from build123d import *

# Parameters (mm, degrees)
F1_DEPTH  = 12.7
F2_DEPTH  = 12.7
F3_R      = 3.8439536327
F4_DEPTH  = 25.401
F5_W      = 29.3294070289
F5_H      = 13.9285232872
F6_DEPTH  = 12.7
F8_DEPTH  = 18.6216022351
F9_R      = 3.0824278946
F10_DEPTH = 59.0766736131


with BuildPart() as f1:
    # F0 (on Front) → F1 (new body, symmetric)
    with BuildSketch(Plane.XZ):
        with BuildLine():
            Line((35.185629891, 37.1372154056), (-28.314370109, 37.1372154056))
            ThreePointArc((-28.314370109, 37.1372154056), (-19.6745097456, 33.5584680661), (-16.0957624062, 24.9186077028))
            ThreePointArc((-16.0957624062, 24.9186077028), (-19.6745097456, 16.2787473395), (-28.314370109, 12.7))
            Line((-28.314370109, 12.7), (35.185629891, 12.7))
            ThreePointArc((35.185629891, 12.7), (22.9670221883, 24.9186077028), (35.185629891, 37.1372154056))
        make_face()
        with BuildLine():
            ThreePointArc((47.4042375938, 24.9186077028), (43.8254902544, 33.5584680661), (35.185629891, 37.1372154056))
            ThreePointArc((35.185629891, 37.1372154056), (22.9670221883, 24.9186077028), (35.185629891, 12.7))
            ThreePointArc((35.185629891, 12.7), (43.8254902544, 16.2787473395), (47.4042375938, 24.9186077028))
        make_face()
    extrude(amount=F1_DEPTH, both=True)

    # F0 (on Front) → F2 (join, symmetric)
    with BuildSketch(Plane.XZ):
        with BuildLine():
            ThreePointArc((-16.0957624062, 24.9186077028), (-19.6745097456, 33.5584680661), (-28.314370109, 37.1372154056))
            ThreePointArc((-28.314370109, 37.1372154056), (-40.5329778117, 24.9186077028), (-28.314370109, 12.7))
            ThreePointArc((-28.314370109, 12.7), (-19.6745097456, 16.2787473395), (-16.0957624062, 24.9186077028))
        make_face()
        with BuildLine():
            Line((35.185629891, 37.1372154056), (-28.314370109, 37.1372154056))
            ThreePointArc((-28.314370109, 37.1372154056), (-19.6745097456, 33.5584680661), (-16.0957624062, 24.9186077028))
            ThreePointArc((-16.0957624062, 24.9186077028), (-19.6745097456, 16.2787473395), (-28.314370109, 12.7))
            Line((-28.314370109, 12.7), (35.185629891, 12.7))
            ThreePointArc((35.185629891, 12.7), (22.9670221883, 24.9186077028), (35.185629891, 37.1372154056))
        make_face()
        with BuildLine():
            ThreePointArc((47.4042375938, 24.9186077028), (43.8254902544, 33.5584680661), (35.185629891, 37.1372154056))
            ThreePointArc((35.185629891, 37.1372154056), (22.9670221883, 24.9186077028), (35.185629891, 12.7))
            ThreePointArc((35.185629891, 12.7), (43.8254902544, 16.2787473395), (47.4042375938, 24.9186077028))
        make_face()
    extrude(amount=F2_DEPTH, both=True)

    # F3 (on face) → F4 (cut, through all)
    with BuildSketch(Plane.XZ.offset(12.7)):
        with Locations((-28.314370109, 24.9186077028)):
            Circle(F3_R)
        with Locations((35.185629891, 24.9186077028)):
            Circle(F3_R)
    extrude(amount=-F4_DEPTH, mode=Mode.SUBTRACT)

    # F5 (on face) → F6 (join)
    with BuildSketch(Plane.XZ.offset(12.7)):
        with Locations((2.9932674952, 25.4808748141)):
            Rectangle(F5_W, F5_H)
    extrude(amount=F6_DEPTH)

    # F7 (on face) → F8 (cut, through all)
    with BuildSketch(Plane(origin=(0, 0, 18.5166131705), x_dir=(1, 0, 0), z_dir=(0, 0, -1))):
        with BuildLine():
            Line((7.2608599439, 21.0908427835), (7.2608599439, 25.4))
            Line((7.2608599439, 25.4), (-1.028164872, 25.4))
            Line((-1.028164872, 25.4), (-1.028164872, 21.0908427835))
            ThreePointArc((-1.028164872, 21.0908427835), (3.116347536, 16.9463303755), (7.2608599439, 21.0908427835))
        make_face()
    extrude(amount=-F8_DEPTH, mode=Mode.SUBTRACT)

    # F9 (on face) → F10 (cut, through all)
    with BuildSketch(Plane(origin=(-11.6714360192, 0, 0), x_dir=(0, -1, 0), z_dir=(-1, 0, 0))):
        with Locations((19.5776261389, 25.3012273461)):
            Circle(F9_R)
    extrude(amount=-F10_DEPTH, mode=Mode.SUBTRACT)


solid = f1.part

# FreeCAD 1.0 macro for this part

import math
import FreeCAD as App
import Part
import Sketcher
from FreeCAD import Vector
Q = App.Units.Quantity


def add_polygon(sketch, points):
    """Adds a closed chain of lines whose ends are joined by coincident constraints."""
    first, n = sketch.GeometryCount, len(points)
    for a, b in zip(points, points[1:] + points[:1]):
        sketch.addGeometry(Part.LineSegment(App.Vector(*a, 0), App.Vector(*b, 0)), False)
    for i in range(n):
        sketch.addConstraint(Sketcher.Constraint("Coincident", first + i, 2, first + (i + 1) % n, 1))

doc = App.newDocument("Part")
body = doc.addObject("PartDesign::Body", "Body")

# Sketch on XZ plane
sketch1 = body.newObject("Sketcher::SketchObject", "Sketch")
sketch1.AttachmentSupport = (doc.getObject("XZ_Plane"), [""])
sketch1.MapMode = "FlatFace"
sketch1.addGeometry(Part.LineSegment(Vector(35.18563, 37.137215, 0), Vector(-28.31437, 37.137215, 0)), False)
sketch1.addGeometry(Part.ArcOfCircle(Part.Circle(Vector(-28.31437, 24.918608, 0), Vector(0, 0, 1), 12.218608), math.radians(0), math.radians(90)), False)
sketch1.addGeometry(Part.ArcOfCircle(Part.Circle(Vector(-28.31437, 24.918608, 0), Vector(0, 0, 1), 12.218608), math.radians(-90), math.radians(0)), False)
sketch1.addGeometry(Part.LineSegment(Vector(-28.31437, 12.7, 0), Vector(35.18563, 12.7, 0)), False)
sketch1.addGeometry(Part.ArcOfCircle(Part.Circle(Vector(35.18563, 24.918608, 0), Vector(0, 0, 1), 12.218608), math.radians(-90), math.radians(0)), False)
sketch1.addGeometry(Part.ArcOfCircle(Part.Circle(Vector(35.18563, 24.918608, 0), Vector(0, 0, 1), 12.218608), math.radians(0), math.radians(90)), False)
sketch1.addConstraint(Sketcher.Constraint("Tangent", 0, 2, 1, 2))
sketch1.addConstraint(Sketcher.Constraint("Tangent", 1, 1, 2, 2))
sketch1.addConstraint(Sketcher.Constraint("Tangent", 2, 1, 3, 1))
sketch1.addConstraint(Sketcher.Constraint("Tangent", 3, 2, 4, 1))
sketch1.addConstraint(Sketcher.Constraint("Tangent", 4, 2, 5, 1))
sketch1.addConstraint(Sketcher.Constraint("Tangent", 5, 2, 0, 1))
sketch1.addConstraint(Sketcher.Constraint("Horizontal", 0))
sketch1.addConstraint(Sketcher.Constraint("Horizontal", 3))
sketch1.addConstraint(Sketcher.Constraint("Equal", 1, 2))
sketch1.addConstraint(Sketcher.Constraint("Equal", 2, 4))
sketch1.addConstraint(Sketcher.Constraint("Horizontal", 5, 3, 1, 1))
sketch1.addConstraint(Sketcher.Constraint("Horizontal", 1, 1, 4, 2))
sketch1.addConstraint(Sketcher.Constraint("DistanceX", 0, 2, 0, 1, Q("2.5 in")))
sketch1.addConstraint(Sketcher.Constraint("DistanceY", -1, 1, 2, 1, Q("0.5 in")))
sketch1.addConstraint(Sketcher.Constraint("Radius", 1, Q("12.218608 mm")))
sketch1.addConstraint(Sketcher.Constraint("DistanceX", 1, 3, -1, 1, Q("28.31437 mm")))
pad1 = body.newObject("PartDesign::Pad", "Pad")
pad1.Profile = sketch1
pad1.Length = Q("1 in")
pad1.Midplane = True

# Sketch on XZ plane
sketch2 = body.newObject("Sketcher::SketchObject", "Sketch001")
sketch2.AttachmentSupport = (doc.getObject("XZ_Plane"), [""])
sketch2.MapMode = "FlatFace"
sketch2.addGeometry(Part.ArcOfCircle(Part.Circle(Vector(-28.31437, 24.918608, 0), Vector(0, 0, 1), 12.218608), math.radians(90), math.radians(270)), False)
sketch2.addGeometry(Part.LineSegment(Vector(-28.31437, 12.7, 0), Vector(35.18563, 12.7, 0)), False)
sketch2.addGeometry(Part.ArcOfCircle(Part.Circle(Vector(35.18563, 24.918608, 0), Vector(0, 0, 1), 12.218608), math.radians(-90), math.radians(0)), False)
sketch2.addGeometry(Part.ArcOfCircle(Part.Circle(Vector(35.18563, 24.918608, 0), Vector(0, 0, 1), 12.218608), math.radians(0), math.radians(90)), False)
sketch2.addGeometry(Part.LineSegment(Vector(35.18563, 37.137215, 0), Vector(-28.31437, 37.137215, 0)), False)
sketch2.addConstraint(Sketcher.Constraint("Tangent", 0, 2, 1, 1))
sketch2.addConstraint(Sketcher.Constraint("Tangent", 1, 2, 2, 1))
sketch2.addConstraint(Sketcher.Constraint("Tangent", 2, 2, 3, 1))
sketch2.addConstraint(Sketcher.Constraint("Tangent", 3, 2, 4, 1))
sketch2.addConstraint(Sketcher.Constraint("Tangent", 4, 2, 0, 1))
sketch2.addConstraint(Sketcher.Constraint("Horizontal", 1))
sketch2.addConstraint(Sketcher.Constraint("Horizontal", 4))
sketch2.addConstraint(Sketcher.Constraint("Equal", 0, 2))
sketch2.addConstraint(Sketcher.Constraint("Horizontal", 3, 3, 2, 2))
sketch2.addConstraint(Sketcher.Constraint("DistanceX", 1, 1, 1, 2, Q("2.5 in")))
sketch2.addConstraint(Sketcher.Constraint("DistanceY", -1, 1, 0, 2, Q("0.5 in")))
sketch2.addConstraint(Sketcher.Constraint("Radius", 0, Q("12.218608 mm")))
sketch2.addConstraint(Sketcher.Constraint("DistanceX", 0, 3, -1, 1, Q("28.31437 mm")))
pad2 = body.newObject("PartDesign::Pad", "Pad001")
pad2.Profile = sketch2
pad2.Length = Q("1 in")
pad2.Midplane = True

# Sketch on XZ plane
sketch3 = body.newObject("Sketcher::SketchObject", "Sketch002")
sketch3.AttachmentSupport = (doc.getObject("XZ_Plane"), [""])
sketch3.MapMode = "FlatFace"
sketch3.AttachmentOffset = App.Placement(Vector(0, 0, 0.5 * 25.4), App.Rotation())
sketch3.addGeometry(Part.Circle(Vector(-28.31437, 24.918608, 0), Vector(0, 0, 1), 3.843954), False)
sketch3.addGeometry(Part.Circle(Vector(35.18563, 24.918608, 0), Vector(0, 0, 1), 3.843954), False)
sketch3.addConstraint(Sketcher.Constraint("Equal", 0, 1))
sketch3.addConstraint(Sketcher.Constraint("Horizontal", 0, 3, 1, 3))
sketch3.addConstraint(Sketcher.Constraint("DistanceX", 0, 3, 1, 3, Q("2.5 in")))
sketch3.addConstraint(Sketcher.Constraint("Diameter", 0, Q("7.687907 mm")))
sketch3.addConstraint(Sketcher.Constraint("DistanceX", 0, 3, -1, 1, Q("28.31437 mm")))
sketch3.addConstraint(Sketcher.Constraint("DistanceY", -1, 1, 0, 3, Q("24.918608 mm")))
pocket1 = body.newObject("PartDesign::Pocket", "Pocket")
pocket1.Profile = sketch3
pocket1.Type = "ThroughAll"

# Sketch on XZ plane
sketch4 = body.newObject("Sketcher::SketchObject", "Sketch003")
sketch4.AttachmentSupport = (doc.getObject("XZ_Plane"), [""])
sketch4.MapMode = "FlatFace"
sketch4.AttachmentOffset = App.Placement(Vector(0, 0, 0.5 * 25.4), App.Rotation())
add_polygon(sketch4, [(-11.671436, 32.445136), (-11.671436, 18.516613), (17.657971, 18.516613), (17.657971, 32.445136)])  # lines 0-3
sketch4.addConstraint(Sketcher.Constraint("Vertical", 0))
sketch4.addConstraint(Sketcher.Constraint("Horizontal", 1))
sketch4.addConstraint(Sketcher.Constraint("Vertical", 2))
sketch4.addConstraint(Sketcher.Constraint("Horizontal", 3))
sketch4.addConstraint(Sketcher.Constraint("DistanceX", 1, 1, 1, 2, Q("29.329407 mm")))
sketch4.addConstraint(Sketcher.Constraint("DistanceY", 0, 2, 0, 1, Q("13.928523 mm")))
sketch4.addConstraint(Sketcher.Constraint("DistanceX", -1, 1, 1, 2, Q("17.657971 mm")))
sketch4.addConstraint(Sketcher.Constraint("DistanceY", -1, 1, 0, 2, Q("18.516613 mm")))
pad3 = body.newObject("PartDesign::Pad", "Pad002")
pad3.Profile = sketch4
pad3.Length = Q("0.5 in")

# Sketch on XY plane
sketch5 = body.newObject("Sketcher::SketchObject", "Sketch004")
sketch5.AttachmentSupport = (doc.getObject("XY_Plane"), [""])
sketch5.MapMode = "FlatFace"
sketch5.AttachmentOffset = App.Placement(Vector(0, 0, 18.516613), App.Rotation())
sketch5.addGeometry(Part.LineSegment(Vector(7.26086, -21.090843, 0), Vector(7.26086, -25.4, 0)), False)
sketch5.addGeometry(Part.LineSegment(Vector(7.26086, -25.4, 0), Vector(-1.028165, -25.4, 0)), False)
sketch5.addGeometry(Part.LineSegment(Vector(-1.028165, -25.4, 0), Vector(-1.028165, -21.090843, 0)), False)
sketch5.addGeometry(Part.ArcOfCircle(Part.Circle(Vector(3.116348, -21.090843, 0), Vector(0, 0, 1), 4.144512), math.radians(0), math.radians(180)), False)
sketch5.addConstraint(Sketcher.Constraint("Coincident", 0, 2, 1, 1))
sketch5.addConstraint(Sketcher.Constraint("Coincident", 1, 2, 2, 1))
sketch5.addConstraint(Sketcher.Constraint("Tangent", 2, 2, 3, 2))
sketch5.addConstraint(Sketcher.Constraint("Tangent", 3, 1, 0, 1))
sketch5.addConstraint(Sketcher.Constraint("Vertical", 0))
sketch5.addConstraint(Sketcher.Constraint("Horizontal", 1))
sketch5.addConstraint(Sketcher.Constraint("Vertical", 2))
sketch5.addConstraint(Sketcher.Constraint("DistanceY", 0, 2, -1, 1, Q("1 in")))
sketch5.addConstraint(Sketcher.Constraint("Radius", 3, Q("4.144512 mm")))
sketch5.addConstraint(Sketcher.Constraint("DistanceY", 0, 2, 0, 1, Q("4.309157 mm")))
sketch5.addConstraint(Sketcher.Constraint("DistanceX", -1, 1, 0, 2, Q("7.26086 mm")))
pocket2 = body.newObject("PartDesign::Pocket", "Pocket001")
pocket2.Profile = sketch5
pocket2.Type = "ThroughAll"
pocket2.Reversed = True

# Sketch on YZ plane
sketch6 = body.newObject("Sketcher::SketchObject", "Sketch005")
sketch6.AttachmentSupport = (doc.getObject("YZ_Plane"), [""])
sketch6.MapMode = "FlatFace"
sketch6.AttachmentOffset = App.Placement(Vector(0, 0, -11.671436), App.Rotation())
sketch6.addGeometry(Part.Circle(Vector(-19.577626, 25.301227, 0), Vector(0, 0, 1), 3.082428), False)
sketch6.addConstraint(Sketcher.Constraint("Diameter", 0, Q("6.164856 mm")))
sketch6.addConstraint(Sketcher.Constraint("DistanceX", 0, 3, -1, 1, Q("19.577626 mm")))
sketch6.addConstraint(Sketcher.Constraint("DistanceY", -1, 1, 0, 3, Q("25.301227 mm")))
pocket3 = body.newObject("PartDesign::Pocket", "Pocket002")
pocket3.Profile = sketch6
pocket3.Type = "ThroughAll"
pocket3.Reversed = True

doc.recompute()
